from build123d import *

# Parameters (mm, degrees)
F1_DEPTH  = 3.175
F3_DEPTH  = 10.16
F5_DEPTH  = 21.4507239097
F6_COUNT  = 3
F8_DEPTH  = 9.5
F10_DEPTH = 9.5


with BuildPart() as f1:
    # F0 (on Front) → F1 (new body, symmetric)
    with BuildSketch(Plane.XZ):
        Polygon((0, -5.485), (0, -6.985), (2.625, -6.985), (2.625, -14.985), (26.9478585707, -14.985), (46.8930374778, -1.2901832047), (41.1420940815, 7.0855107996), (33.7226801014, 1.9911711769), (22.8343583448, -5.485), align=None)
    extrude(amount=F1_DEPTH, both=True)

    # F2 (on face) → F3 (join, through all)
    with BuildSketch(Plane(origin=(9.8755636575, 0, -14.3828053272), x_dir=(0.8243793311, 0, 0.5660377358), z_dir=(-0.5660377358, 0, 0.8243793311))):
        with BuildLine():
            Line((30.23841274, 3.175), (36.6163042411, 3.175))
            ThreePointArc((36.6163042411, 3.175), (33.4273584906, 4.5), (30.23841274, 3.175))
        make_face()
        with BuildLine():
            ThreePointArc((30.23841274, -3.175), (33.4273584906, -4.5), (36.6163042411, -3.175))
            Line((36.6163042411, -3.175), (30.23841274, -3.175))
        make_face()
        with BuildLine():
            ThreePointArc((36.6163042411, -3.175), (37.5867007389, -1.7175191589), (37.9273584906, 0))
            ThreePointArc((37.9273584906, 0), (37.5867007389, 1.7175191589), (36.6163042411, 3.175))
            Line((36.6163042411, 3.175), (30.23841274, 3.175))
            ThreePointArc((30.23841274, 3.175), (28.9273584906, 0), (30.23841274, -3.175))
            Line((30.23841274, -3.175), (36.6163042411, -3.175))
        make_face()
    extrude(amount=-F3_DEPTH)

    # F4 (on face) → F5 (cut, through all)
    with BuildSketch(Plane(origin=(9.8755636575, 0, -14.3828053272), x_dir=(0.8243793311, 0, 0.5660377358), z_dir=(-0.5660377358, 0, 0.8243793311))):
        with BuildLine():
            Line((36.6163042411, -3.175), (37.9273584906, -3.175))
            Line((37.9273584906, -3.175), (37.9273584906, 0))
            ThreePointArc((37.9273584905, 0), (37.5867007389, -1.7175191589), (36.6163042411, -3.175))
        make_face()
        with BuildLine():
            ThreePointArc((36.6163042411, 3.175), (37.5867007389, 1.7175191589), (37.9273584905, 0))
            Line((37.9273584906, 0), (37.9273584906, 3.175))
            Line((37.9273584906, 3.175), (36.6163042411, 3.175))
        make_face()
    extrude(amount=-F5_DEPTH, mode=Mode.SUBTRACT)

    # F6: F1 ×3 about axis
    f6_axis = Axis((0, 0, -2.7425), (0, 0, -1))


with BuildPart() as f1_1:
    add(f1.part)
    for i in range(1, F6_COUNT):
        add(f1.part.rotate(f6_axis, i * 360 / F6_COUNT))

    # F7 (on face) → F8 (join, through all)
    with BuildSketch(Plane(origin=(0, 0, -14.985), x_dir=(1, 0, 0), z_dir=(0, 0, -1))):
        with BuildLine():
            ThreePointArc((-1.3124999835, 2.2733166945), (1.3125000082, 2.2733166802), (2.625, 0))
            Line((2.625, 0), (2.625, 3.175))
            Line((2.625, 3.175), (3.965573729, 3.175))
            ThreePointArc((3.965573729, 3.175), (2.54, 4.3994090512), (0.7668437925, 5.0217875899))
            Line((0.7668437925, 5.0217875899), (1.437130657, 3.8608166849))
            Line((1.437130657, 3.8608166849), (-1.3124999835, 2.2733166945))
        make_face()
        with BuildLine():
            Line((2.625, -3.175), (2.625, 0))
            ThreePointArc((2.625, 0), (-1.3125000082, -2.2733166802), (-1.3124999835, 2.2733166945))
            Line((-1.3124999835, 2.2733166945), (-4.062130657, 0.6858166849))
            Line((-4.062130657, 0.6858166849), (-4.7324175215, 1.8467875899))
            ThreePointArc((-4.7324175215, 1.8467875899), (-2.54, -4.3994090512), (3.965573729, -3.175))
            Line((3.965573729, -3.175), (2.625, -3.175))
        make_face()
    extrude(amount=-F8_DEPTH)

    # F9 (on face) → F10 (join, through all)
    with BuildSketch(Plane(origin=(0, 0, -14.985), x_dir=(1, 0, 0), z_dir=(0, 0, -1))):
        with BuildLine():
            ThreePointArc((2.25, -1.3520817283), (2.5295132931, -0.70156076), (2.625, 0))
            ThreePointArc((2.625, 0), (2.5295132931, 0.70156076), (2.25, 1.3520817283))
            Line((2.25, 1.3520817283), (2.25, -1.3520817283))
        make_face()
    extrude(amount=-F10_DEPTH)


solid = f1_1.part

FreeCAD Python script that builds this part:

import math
import FreeCAD as App
import Part
import Sketcher

V = App.Vector
Q = App.Units.Quantity


def add_polygon(sketch, points):
    """Adds a closed chain of lines whose ends are joined by coincident constraints."""
    first, n = sketch.GeometryCount, len(points)
    for a, b in zip(points, points[1:] + points[:1]):
        sketch.addGeometry(Part.LineSegment(App.Vector(*a, 0), App.Vector(*b, 0)), False)
    for i in range(n):
        sketch.addConstraint(Sketcher.Constraint("Coincident", first + i, 2, first + (i + 1) % n, 1))

doc = App.newDocument("Part")
body = doc.addObject("PartDesign::Body", "Body")

sketch1 = body.newObject("Sketcher::SketchObject", "Sketch")
sketch1.AttachmentSupport = (doc.getObject("XZ_Plane"), [""])
sketch1.MapMode = "FlatFace"
add_polygon(sketch1, [(0, -5.5), (0, -7), (2.6, -7), (2.6, -15), (26.9, -15), (46.9, -1.3), (41.1, 7.1), (33.7, 2), (22.8, -5.5)])
sketch1.addConstraint([
    Sketcher.Constraint("Vertical", 0),
    Sketcher.Constraint("Horizontal", 1),
    Sketcher.Constraint("Vertical", 2),
    Sketcher.Constraint("Horizontal", 3),
    Sketcher.Constraint("Horizontal", 8),
    Sketcher.Constraint("PointOnObject", 0, 2, -2),
    Sketcher.Constraint("Perpendicular", 4, 5),
    Sketcher.Constraint("Perpendicular", 5, 6),
    Sketcher.Constraint("Parallel", 6, 7),
    Sketcher.Constraint("DistanceY", 2, 2, 2, 1, 8.0),
    Sketcher.Constraint("Distance", 6, 9.0),
    Sketcher.Constraint("DistanceY", 0, 2, 0, 1, 1.5),
    Sketcher.Constraint("Distance", 5, 10.16),
    Sketcher.Constraint("DistanceX", 1, 1, 1, 2, 2.625),
    Sketcher.Constraint("DistanceY", 0, 2, -1, 1, 6.985),
    Sketcher.Constraint("DistanceX", 3, 1, 3, 2, 24.322859),
    Sketcher.Constraint("DistanceX", 8, 2, 8, 1, 22.834358),
    Sketcher.Constraint("DistanceY", -1, 1, 5, 2, 7.085511),
])
pad1 = body.newObject("PartDesign::Pad", "Pad")
pad1.Profile = sketch1
pad1.Length = 6.35
pad1.Midplane = True

sketch2 = body.newObject("Sketcher::SketchObject", "Sketch001")
sketch2.Placement = App.Placement(V(9.875564, 0, -14.382805), App.Rotation(V(0.824379331, 0, 0.566037736), V(0, 1, 0), V(-0.566037736, 0, 0.824379331), "ZXY"))
sketch2.addGeometry([
    Part.ArcOfCircle(Part.Circle(V(33.4, 0, 0), V(0, 0, 1), 4.5), math.radians(45), math.radians(135)),
    Part.ArcOfCircle(Part.Circle(V(33.4, 0, 0), V(0, 0, 1), 4.5), math.radians(135), math.radians(225)),
    Part.ArcOfCircle(Part.Circle(V(33.4, 0, 0), V(0, 0, 1), 4.5), math.radians(-135), math.radians(-45)),
    Part.ArcOfCircle(Part.Circle(V(33.4, 0, 0), V(0, 0, 1), 4.5), math.radians(-45), math.radians(0)),
    Part.ArcOfCircle(Part.Circle(V(33.4, 0, 0), V(0, 0, 1), 4.5), math.radians(0), math.radians(45)),
], False)
sketch2.addConstraint([
    Sketcher.Constraint("Tangent", 0, 2, 1, 1),
    Sketcher.Constraint("Tangent", 1, 2, 2, 1),
    Sketcher.Constraint("Tangent", 2, 2, 3, 1),
    Sketcher.Constraint("Tangent", 3, 2, 4, 1),
    Sketcher.Constraint("Tangent", 4, 2, 0, 1),
    Sketcher.Constraint("Coincident", 2, 3, 0, 3),
    Sketcher.Constraint("Symmetric", 0, 2, 1, 2, -1),
    Sketcher.Constraint("PointOnObject", 3, 2, -1),
    Sketcher.Constraint("Horizontal", 1, 2, 2, 2),
    Sketcher.Constraint("Horizontal", 0, 2, 4, 2),
    Sketcher.Constraint("Radius", 0, 4.5),
    Sketcher.Constraint("DistanceY", -1, 1, 0, 2, 3.175),
    Sketcher.Constraint("DistanceX", -1, 1, 0, 3, 33.427358),
])
pad2 = body.newObject("PartDesign::Pad", "Pad001")
pad2.Profile = sketch2
pad2.Type = "UpToLast"
pad2.Reversed = True

sketch3 = body.newObject("Sketcher::SketchObject", "Sketch002")
sketch3.Placement = App.Placement(V(9.875564, 0, -14.382805), App.Rotation(V(0.824379331, 0, 0.566037736), V(0, 1, 0), V(-0.566037736, 0, 0.824379331), "ZXY"))
sketch3.addGeometry([
    Part.LineSegment(V(36.6, -3.2, 0), V(37.9, -3.2, 0)),
    Part.LineSegment(V(37.9, -3.2, 0), V(37.9, 0, 0)),
    Part.ArcOfCircle(Part.Circle(V(33.4, 0, 0), V(0, 0, 1), 4.5), math.radians(-45), math.radians(0)),
    Part.ArcOfCircle(Part.Circle(V(33.4, 0, 0), V(0, 0, 1), 4.5), math.radians(0), math.radians(45)),
    Part.LineSegment(V(37.9, 0, 0), V(37.9, 3.2, 0)),
    Part.LineSegment(V(37.9, 3.2, 0), V(36.6, 3.2, 0)),
], False)
sketch3.addConstraint([
    Sketcher.Constraint("Coincident", 0, 2, 1, 1),
    Sketcher.Constraint("Tangent", 1, 2, 2, 2),
    Sketcher.Constraint("Coincident", 2, 1, 0, 1),
    Sketcher.Constraint("Tangent", 3, 1, 4, 1),
    Sketcher.Constraint("Coincident", 4, 2, 5, 1),
    Sketcher.Constraint("Coincident", 5, 2, 3, 2),
    Sketcher.Constraint("Horizontal", 0),
    Sketcher.Constraint("Vertical", 1),
    Sketcher.Constraint("Vertical", 4),
    Sketcher.Constraint("Horizontal", 5),
    Sketcher.Constraint("Coincident", 3, 3, 2, 3),
    Sketcher.Constraint("Equal", 2, 3),
    Sketcher.Constraint("Symmetric", 2, 1, 5, 2, -1),
    Sketcher.Constraint("Radius", 2, 4.5),
    Sketcher.Constraint("DistanceY", 1, 1, 1, 2, 3.175),
    Sketcher.Constraint("DistanceX", -1, 1, 2, 3, 33.427358),
])
pocket1 = body.newObject("PartDesign::Pocket", "Pocket")
pocket1.Profile = sketch3
pocket1.Type = "ThroughAll"
body2 = doc.addObject("PartDesign::Body", "Body001")
doc.recompute()

body2.BaseFeature = body
doc.recompute()

body3 = doc.addObject("PartDesign::Body", "Body002")
body3.BaseFeature = body
body3.Placement = App.Placement(V(0, 0, 0), App.Rotation(V(0, 0, -1), 120))
boolean = body2.newObject("PartDesign::Boolean", "Boolean")
boolean.Type = "Fuse"
boolean.addObjects([body3])
doc.recompute()

body.Placement = App.Placement(V(0, 0, 0), App.Rotation(V(0, 0, -1), 240))
boolean2 = body2.newObject("PartDesign::Boolean", "Boolean001")
boolean2.Type = "Fuse"
boolean2.addObjects([body])

sketch4 = body2.newObject("Sketcher::SketchObject", "Sketch003")
sketch4.AttachmentSupport = (doc.getObject("XY_Plane001"), [""])
sketch4.MapMode = "FlatFace"
sketch4.AttachmentOffset = App.Placement(V(0, 0, -14.985), App.Rotation())
sketch4.addGeometry([
    Part.ArcOfCircle(Part.Circle(V(0, 0, 0), V(0, 0, 1), 2.6), math.radians(-120), math.radians(0)),
    Part.LineSegment(V(2.6, 0, 0), V(2.6, -3.2, 0)),
    Part.LineSegment(V(2.6, -3.2, 0), V(4, -3.2, 0)),
    Part.ArcOfCircle(Part.Circle(V(0, 0, 0), V(0, 0, 1), 5.1), math.radians(-81), math.radians(-39)),
    Part.LineSegment(V(0.8, -5, 0), V(1.4, -3.9, 0)),
    Part.LineSegment(V(1.4, -3.9, 0), V(-1.3, -2.3, 0)),
    Part.LineSegment(V(2.6, 3.2, 0), V(2.6, 0, 0)),
    Part.ArcOfCircle(Part.Circle(V(0, 0, 0), V(0, 0, 1), 2.6), math.radians(0), math.radians(240)),
    Part.LineSegment(V(-1.3, -2.3, 0), V(-4.1, -0.7, 0)),
    Part.LineSegment(V(-4.1, -0.7, 0), V(-4.7, -1.8, 0)),
    Part.ArcOfCircle(Part.Circle(V(0, 0, 0), V(0, 0, 1), 5.1), math.radians(39), math.radians(201)),
    Part.LineSegment(V(4, 3.2, 0), V(2.6, 3.2, 0)),
], False)
sketch4.addConstraint([
    Sketcher.Constraint("Tangent", 0, 2, 1, 1),
    Sketcher.Constraint("Coincident", 1, 2, 2, 1),
    Sketcher.Constraint("Coincident", 2, 2, 3, 2),
    Sketcher.Constraint("Coincident", 3, 1, 4, 1),
    Sketcher.Constraint("Coincident", 4, 2, 5, 1),
    Sketcher.Constraint("Tangent", 5, 2, 0, 1),
    Sketcher.Constraint("Tangent", 6, 2, 7, 1),
    Sketcher.Constraint("Tangent", 7, 2, 8, 1),
    Sketcher.Constraint("Coincident", 8, 2, 9, 1),
    Sketcher.Constraint("Coincident", 9, 2, 10, 2),
    Sketcher.Constraint("Coincident", 10, 1, 11, 1),
    Sketcher.Constraint("Coincident", 11, 2, 6, 1),
    Sketcher.Constraint("Vertical", 1),
    Sketcher.Constraint("Horizontal", 2),
    Sketcher.Constraint("Vertical", 6),
    Sketcher.Constraint("Horizontal", 11),
    Sketcher.Constraint("Coincident", 0, 3, -1, 1),
    Sketcher.Constraint("Coincident", 3, 3, -1, 1),
    Sketcher.Constraint("Coincident", 7, 3, -1, 1),
    Sketcher.Constraint("Coincident", 10, 3, -1, 1),
    Sketcher.Constraint("Coincident", 7, 2, 5, 2),
    Sketcher.Constraint("Equal", 3, 10),
    Sketcher.Constraint("Perpendicular", 4, 5),
    Sketcher.Constraint("Perpendicular", 8, 9),
    Sketcher.Constraint("Vertical", 2, 2, 10, 1),
    Sketcher.Constraint("Equal", 5, 8),
    Sketcher.Constraint("Angle", 4, Q("60 deg")),
    Sketcher.Constraint("Radius", 3, 5.08),
    Sketcher.Constraint("Radius", 0, 2.625),
    Sketcher.Constraint("DistanceY", 1, 2, 1, 1, 3.175),
    Sketcher.Constraint("Distance", 5, 3.175),
])
pad3 = body2.newObject("PartDesign::Pad", "Pad002")
pad3.Profile = sketch4
pad3.Type = "UpToLast"

sketch5 = body2.newObject("Sketcher::SketchObject", "Sketch004")
sketch5.AttachmentSupport = (doc.getObject("XY_Plane001"), [""])
sketch5.MapMode = "FlatFace"
sketch5.AttachmentOffset = App.Placement(V(0, 0, -14.985), App.Rotation())
sketch5.addGeometry([
    Part.ArcOfCircle(Part.Circle(V(0, 0, 0), V(0, 0, 1), 2.6), math.radians(0), math.radians(31)),
    Part.ArcOfCircle(Part.Circle(V(0, 0, 0), V(0, 0, 1), 2.6), math.radians(-31), math.radians(0)),
    Part.LineSegment(V(2.2, -1.4, 0), V(2.2, 1.4, 0)),
], False)
sketch5.addConstraint([
    Sketcher.Constraint("Tangent", 0, 1, 1, 2),
    Sketcher.Constraint("Coincident", 1, 1, 2, 1),
    Sketcher.Constraint("Coincident", 2, 2, 0, 2),
    Sketcher.Constraint("Vertical", 2),
    Sketcher.Constraint("Coincident", 0, 3, -1, 1),
    Sketcher.Constraint("Equal", 0, 1),
    Sketcher.Constraint("PointOnObject", 0, 1, -1),
    Sketcher.Constraint("Radius", 0, 2.625),
    Sketcher.Constraint("DistanceX", -1, 1, 1, 1, 2.25),
])
pad4 = body2.newObject("PartDesign::Pad", "Pad003")
pad4.Profile = sketch5
pad4.Type = "UpToLast"

doc.recompute()
